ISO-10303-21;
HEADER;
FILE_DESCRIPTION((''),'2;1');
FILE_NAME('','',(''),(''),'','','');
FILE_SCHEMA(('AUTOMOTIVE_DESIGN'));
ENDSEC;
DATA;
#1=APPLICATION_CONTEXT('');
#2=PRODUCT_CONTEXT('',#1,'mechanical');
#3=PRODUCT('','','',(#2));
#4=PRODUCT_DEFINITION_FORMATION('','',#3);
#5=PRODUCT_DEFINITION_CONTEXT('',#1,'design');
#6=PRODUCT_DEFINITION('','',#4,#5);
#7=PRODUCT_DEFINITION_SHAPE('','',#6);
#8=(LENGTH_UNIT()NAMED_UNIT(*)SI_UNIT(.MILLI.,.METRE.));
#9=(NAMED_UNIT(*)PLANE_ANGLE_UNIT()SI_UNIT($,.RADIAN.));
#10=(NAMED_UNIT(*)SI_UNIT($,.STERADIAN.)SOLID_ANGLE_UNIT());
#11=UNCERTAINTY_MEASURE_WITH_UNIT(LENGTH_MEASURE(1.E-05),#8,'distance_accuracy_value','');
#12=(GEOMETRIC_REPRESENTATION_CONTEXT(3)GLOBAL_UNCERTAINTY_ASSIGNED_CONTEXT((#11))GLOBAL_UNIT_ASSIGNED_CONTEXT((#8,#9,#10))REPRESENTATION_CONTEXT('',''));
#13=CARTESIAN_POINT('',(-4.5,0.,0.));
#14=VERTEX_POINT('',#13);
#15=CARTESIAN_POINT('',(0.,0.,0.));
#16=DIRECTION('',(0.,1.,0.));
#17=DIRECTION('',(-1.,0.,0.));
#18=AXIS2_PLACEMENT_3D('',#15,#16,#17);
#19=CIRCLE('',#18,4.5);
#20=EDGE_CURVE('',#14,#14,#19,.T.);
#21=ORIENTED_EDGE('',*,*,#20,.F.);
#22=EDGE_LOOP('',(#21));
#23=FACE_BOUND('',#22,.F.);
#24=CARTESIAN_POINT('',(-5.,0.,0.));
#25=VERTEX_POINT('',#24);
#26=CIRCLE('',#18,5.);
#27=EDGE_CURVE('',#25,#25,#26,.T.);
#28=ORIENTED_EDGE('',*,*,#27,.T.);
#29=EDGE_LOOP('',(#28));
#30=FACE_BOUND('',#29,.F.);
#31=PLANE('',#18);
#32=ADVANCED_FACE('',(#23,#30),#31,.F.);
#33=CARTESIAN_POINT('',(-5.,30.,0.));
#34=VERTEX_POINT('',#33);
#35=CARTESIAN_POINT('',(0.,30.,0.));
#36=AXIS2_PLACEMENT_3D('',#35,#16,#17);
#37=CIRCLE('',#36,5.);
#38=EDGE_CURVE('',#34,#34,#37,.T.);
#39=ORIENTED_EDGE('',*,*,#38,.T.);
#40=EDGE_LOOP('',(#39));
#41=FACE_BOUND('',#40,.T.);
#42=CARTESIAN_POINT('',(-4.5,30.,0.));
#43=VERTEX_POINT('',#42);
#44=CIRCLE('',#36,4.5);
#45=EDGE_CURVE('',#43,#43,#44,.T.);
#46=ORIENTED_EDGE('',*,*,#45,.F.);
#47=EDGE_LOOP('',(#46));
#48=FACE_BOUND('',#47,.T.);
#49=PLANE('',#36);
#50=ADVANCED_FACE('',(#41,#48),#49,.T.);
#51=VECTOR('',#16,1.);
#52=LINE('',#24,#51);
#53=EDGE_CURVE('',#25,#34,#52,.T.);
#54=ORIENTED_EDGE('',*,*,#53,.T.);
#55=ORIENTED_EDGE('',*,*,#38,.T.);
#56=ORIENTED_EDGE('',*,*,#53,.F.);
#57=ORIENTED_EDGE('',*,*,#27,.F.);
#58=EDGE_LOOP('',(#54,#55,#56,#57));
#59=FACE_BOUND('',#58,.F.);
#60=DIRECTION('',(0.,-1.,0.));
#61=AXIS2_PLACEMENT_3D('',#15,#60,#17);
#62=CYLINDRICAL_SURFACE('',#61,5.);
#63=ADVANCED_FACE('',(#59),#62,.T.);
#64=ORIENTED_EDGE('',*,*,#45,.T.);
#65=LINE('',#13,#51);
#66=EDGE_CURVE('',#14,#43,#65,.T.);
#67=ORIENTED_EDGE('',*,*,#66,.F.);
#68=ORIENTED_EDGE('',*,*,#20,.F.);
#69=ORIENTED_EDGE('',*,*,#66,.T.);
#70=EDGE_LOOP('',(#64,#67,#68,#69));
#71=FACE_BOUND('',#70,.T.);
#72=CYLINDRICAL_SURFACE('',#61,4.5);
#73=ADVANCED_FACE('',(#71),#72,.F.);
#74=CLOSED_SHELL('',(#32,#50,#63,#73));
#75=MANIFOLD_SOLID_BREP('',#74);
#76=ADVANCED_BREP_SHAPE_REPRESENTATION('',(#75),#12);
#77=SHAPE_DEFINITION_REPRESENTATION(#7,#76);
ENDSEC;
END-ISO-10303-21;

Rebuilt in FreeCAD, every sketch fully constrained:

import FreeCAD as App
import Part
import Sketcher
from FreeCAD import Vector
Q = App.Units.Quantity

doc = App.newDocument("Part")
body = doc.addObject("PartDesign::Body", "Body")

# Sketch on XZ plane
sketch1 = doc.addObject("Sketcher::SketchObject", "Sketch")
body.addObject(sketch1)
sketch1.AttachmentSupport = (doc.XZ_Plane, [""])
sketch1.MapMode = "FlatFace"
sketch1.addGeometry([
    Part.Circle(Vector(0, 0, 0), Vector(0, 0, 1), 5),
    Part.Circle(Vector(0, 0, 0), Vector(0, 0, 1), 4.5),
], False)
sketch1.addConstraint([
    Sketcher.Constraint("Coincident", 0, 3, -1, 1),
    Sketcher.Constraint("Coincident", 1, 3, -1, 1),
    Sketcher.Constraint("Diameter", 0, Q("10 mm")),
    Sketcher.Constraint("Diameter", 1, Q("9 mm")),
])
pad1 = doc.addObject("PartDesign::Pad", "Pad")
body.addObject(pad1)
pad1.Profile = sketch1
pad1.Length = 30
pad1.Reversed = True

doc.recompute()
